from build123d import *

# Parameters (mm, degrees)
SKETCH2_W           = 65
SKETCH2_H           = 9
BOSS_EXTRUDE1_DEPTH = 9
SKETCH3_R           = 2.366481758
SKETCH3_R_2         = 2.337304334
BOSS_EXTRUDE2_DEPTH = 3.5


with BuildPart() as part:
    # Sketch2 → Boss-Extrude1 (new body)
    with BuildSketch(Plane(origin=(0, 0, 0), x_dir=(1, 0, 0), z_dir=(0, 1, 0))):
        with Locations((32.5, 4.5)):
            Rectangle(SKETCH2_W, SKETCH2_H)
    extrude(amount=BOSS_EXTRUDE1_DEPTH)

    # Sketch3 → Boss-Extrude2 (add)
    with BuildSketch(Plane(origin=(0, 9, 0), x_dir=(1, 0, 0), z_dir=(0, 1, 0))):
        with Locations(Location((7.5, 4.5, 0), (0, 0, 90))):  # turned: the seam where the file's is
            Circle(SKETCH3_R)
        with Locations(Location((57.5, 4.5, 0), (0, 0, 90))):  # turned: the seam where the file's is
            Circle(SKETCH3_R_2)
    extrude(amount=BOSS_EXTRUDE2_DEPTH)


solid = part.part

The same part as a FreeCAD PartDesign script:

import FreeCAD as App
import Part
import Sketcher

V = App.Vector
Q = App.Units.Quantity

doc = App.newDocument("Part")
body = doc.addObject("PartDesign::Body", "Body")

sketch1 = body.newObject("Sketcher::SketchObject", "Sketch")
sketch1.AttachmentSupport = (doc.getObject("XZ_Plane"), [""])
sketch1.MapMode = "FlatFace"
sketch1.addGeometry([
    Part.LineSegment(V(0, -9, 0), V(0, 0, 0)),
    Part.LineSegment(V(0, 0, 0), V(65, 0, 0)),
    Part.LineSegment(V(65, 0, 0), V(65, -9, 0)),
    Part.LineSegment(V(65, -9, 0), V(0, -9, 0)),
], False)
sketch1.addConstraint([
    Sketcher.Constraint("Coincident", 0, 2, 1, 1),
    Sketcher.Constraint("Coincident", 1, 2, 2, 1),
    Sketcher.Constraint("Coincident", 2, 2, 3, 1),
    Sketcher.Constraint("Coincident", 3, 2, 0, 1),
    Sketcher.Constraint("Vertical", 0),
    Sketcher.Constraint("Horizontal", 1),
    Sketcher.Constraint("Vertical", 2),
    Sketcher.Constraint("Horizontal", 3),
    Sketcher.Constraint("Coincident", 0, 2, -1, 1),
    Sketcher.Constraint("DistanceX", 1, 1, 1, 2, Q("65 mm")),
    Sketcher.Constraint("DistanceY", 0, 1, 0, 2, Q("9 mm")),
])
pad1 = body.newObject("PartDesign::Pad", "Pad")
pad1.Profile = sketch1
pad1.Length = 9
pad1.Reversed = True

sketch2 = body.newObject("Sketcher::SketchObject", "Sketch001")
sketch2.AttachmentSupport = (doc.getObject("XZ_Plane"), [""])
sketch2.MapMode = "FlatFace"
sketch2.AttachmentOffset = App.Placement(V(0, 0, -9), App.Rotation())
sketch2.addGeometry([
    Part.Circle(V(7.5, -4.5, 0), V(0, 0, 1), 2.4),
    Part.Circle(V(57.5, -4.5, 0), V(0, 0, 1), 2.3),
], False)
sketch2.addConstraint([
    Sketcher.Constraint("Horizontal", 0, 3, 1, 3),
    Sketcher.Constraint("DistanceX", 0, 3, 1, 3, Q("50 mm")),
    Sketcher.Constraint("DistanceX", -1, 1, 0, 3, Q("7.5 mm")),
    Sketcher.Constraint("DistanceY", 0, 3, -1, 1, Q("4.5 mm")),
    Sketcher.Constraint("Diameter", 1, Q("4.674609 mm")),
    Sketcher.Constraint("Diameter", 0, Q("4.732964 mm")),
])
pad2 = body.newObject("PartDesign::Pad", "Pad001")
pad2.Profile = sketch2
pad2.Length = 3.5
pad2.Reversed = True

doc.recompute()
